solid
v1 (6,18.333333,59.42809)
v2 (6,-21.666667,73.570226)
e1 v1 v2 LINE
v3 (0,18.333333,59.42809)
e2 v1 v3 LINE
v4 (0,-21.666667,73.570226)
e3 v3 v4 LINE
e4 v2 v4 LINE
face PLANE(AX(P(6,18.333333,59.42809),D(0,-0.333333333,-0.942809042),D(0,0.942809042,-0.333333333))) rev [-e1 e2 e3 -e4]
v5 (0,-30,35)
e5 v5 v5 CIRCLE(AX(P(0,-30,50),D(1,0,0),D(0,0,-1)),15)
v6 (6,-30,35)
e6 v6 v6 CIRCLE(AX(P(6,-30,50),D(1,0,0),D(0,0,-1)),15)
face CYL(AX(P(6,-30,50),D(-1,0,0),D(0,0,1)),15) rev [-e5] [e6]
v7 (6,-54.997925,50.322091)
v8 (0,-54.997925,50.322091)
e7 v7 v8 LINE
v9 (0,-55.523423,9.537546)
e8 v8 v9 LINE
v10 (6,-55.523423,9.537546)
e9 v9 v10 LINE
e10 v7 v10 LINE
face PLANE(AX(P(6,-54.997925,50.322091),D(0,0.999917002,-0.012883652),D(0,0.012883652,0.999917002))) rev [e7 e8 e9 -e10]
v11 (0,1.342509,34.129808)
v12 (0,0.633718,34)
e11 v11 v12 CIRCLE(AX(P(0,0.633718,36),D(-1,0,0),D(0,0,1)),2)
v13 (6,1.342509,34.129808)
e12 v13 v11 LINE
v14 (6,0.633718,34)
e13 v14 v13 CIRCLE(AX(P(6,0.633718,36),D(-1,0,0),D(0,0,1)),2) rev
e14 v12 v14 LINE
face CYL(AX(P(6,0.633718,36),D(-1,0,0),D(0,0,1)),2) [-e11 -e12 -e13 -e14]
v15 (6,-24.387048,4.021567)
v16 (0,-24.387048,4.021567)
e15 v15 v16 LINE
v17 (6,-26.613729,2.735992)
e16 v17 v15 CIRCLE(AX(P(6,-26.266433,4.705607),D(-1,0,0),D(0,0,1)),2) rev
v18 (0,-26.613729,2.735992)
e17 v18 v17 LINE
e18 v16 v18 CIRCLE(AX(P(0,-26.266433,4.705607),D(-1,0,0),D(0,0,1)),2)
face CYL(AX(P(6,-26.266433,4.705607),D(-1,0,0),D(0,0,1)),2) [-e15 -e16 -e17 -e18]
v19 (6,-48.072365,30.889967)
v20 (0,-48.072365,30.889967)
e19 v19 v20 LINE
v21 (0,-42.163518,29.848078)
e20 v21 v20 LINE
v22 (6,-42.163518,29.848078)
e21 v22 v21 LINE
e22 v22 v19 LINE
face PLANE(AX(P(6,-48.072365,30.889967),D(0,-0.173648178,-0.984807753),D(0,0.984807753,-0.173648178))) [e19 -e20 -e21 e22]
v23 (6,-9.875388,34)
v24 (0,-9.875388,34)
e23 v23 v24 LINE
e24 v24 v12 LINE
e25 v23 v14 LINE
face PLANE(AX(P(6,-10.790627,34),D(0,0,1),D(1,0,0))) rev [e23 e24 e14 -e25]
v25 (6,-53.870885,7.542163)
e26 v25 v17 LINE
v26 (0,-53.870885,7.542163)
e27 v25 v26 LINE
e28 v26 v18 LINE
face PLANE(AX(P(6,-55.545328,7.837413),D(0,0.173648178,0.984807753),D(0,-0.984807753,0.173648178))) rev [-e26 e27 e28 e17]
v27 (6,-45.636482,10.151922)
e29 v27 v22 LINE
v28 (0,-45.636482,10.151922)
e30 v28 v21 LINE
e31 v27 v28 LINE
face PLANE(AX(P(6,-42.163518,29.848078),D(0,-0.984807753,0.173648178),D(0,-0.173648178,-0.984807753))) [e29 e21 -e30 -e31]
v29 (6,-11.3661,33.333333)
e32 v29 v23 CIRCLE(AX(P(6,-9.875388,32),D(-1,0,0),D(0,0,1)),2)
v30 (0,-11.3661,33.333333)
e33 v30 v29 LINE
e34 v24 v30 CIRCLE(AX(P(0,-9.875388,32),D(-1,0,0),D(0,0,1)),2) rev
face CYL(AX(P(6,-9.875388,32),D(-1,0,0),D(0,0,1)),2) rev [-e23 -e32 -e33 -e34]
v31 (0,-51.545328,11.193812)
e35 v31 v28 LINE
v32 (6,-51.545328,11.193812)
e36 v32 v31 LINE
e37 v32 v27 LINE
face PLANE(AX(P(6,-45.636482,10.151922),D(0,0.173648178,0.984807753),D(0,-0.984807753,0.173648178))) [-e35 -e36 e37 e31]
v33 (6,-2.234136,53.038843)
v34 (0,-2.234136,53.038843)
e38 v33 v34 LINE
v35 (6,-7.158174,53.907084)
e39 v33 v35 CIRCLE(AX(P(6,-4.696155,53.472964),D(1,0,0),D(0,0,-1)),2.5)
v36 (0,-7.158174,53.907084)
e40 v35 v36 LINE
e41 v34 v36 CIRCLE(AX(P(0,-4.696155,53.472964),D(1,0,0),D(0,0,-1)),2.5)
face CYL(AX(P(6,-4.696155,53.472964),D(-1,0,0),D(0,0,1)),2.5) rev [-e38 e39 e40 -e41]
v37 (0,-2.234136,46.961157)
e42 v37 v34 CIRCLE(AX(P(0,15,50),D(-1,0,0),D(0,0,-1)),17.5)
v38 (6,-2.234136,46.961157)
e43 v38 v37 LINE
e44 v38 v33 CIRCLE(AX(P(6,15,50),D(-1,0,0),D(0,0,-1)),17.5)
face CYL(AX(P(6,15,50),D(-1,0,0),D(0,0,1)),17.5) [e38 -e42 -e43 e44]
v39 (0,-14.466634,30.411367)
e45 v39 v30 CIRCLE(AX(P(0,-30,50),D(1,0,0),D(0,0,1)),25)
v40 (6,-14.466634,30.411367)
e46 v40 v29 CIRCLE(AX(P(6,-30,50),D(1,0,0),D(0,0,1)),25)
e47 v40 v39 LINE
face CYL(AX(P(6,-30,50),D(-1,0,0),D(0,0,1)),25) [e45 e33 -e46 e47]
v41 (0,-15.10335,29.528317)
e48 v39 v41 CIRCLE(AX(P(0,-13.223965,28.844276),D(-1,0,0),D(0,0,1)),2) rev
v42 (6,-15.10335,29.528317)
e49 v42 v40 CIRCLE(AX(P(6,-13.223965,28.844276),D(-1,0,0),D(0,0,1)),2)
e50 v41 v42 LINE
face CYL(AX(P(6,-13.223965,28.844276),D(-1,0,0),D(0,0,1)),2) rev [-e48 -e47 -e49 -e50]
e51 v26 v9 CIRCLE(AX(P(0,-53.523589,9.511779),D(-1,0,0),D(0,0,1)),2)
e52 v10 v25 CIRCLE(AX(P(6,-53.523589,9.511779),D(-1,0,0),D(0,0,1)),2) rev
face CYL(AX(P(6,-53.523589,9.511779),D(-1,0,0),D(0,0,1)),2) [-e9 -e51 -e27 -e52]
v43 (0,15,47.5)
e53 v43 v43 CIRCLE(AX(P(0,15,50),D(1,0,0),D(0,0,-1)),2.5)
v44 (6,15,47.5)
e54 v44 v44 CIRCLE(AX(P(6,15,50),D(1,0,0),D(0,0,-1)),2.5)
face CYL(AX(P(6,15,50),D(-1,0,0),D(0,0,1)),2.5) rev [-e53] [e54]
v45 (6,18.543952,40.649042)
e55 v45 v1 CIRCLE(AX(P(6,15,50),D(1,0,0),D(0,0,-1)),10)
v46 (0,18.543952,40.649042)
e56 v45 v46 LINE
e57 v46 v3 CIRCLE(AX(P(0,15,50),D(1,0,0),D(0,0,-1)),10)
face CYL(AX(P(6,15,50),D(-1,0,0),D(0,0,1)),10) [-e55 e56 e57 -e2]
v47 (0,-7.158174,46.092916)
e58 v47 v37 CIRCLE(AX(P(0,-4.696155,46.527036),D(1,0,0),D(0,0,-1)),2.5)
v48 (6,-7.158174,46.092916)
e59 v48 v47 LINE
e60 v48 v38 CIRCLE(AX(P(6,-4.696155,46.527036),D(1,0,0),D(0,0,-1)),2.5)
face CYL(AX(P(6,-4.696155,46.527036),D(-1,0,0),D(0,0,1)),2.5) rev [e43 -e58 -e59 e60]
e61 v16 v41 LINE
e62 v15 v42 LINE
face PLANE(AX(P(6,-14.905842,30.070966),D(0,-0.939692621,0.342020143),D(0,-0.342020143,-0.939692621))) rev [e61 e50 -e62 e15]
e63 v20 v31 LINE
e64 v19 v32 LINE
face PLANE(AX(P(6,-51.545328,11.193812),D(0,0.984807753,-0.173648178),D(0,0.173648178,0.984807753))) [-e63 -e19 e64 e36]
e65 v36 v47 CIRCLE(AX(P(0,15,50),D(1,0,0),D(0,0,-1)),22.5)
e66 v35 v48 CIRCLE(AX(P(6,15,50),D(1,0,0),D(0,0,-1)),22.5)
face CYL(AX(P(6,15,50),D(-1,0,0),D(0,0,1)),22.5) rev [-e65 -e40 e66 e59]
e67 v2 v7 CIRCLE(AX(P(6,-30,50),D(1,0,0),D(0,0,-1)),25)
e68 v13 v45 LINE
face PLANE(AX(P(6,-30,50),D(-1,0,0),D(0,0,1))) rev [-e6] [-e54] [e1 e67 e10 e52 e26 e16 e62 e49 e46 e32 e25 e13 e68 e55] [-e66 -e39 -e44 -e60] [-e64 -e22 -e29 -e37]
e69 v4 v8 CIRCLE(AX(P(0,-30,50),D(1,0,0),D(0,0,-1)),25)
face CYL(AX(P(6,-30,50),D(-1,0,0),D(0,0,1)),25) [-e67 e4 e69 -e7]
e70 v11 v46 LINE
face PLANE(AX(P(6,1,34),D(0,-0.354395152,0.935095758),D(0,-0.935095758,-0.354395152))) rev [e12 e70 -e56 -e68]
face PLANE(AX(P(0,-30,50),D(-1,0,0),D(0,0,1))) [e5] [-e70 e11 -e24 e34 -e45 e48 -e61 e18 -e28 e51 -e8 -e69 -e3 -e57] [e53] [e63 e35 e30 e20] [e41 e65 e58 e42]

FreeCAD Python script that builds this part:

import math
import FreeCAD as App
import Part
import Sketcher
from FreeCAD import Vector
Q = App.Units.Quantity


def edges_at(feature, points):
    """Names of the edges that pass closest to the given points."""
    edges = feature.Shape.Edges
    near = lambda p: min(range(len(edges)), key=lambda i: edges[i].distToShape(Part.Vertex(*p))[0])
    return sorted({f"Edge{near(p) + 1}" for p in points})

doc = App.newDocument("Part")
body = doc.addObject("PartDesign::Body", "Body")

# Sketch on YZ plane
sketch1 = body.newObject("Sketcher::SketchObject", "Sketch")
sketch1.AttachmentSupport = (doc.getObject("YZ_Plane"), [""])
sketch1.MapMode = "FlatFace"
sketch1.addGeometry([
    Part.LineSegment(Vector(18.333333, 59.42809, 0), Vector(-21.666667, 73.570226, 0)),  # 0
    Part.ArcOfCircle(Part.Circle(Vector(-30, 50, 0), Vector(0, 0, 1), 25), math.radians(70.528779), math.radians(179.261801)),  # 1
    Part.LineSegment(Vector(-54.997925, 50.322091, 0), Vector(-55.545328, 7.837413, 0)),  # 2
    Part.LineSegment(Vector(-55.545328, 7.837413, 0), Vector(-24.961026, 2.444575, 0)),  # 3
    Part.LineSegment(Vector(-24.961026, 2.444575, 0), Vector(-14.905842, 30.070966, 0)),  # 4
    Part.ArcOfCircle(Part.Circle(Vector(-30, 50, 0), Vector(0, 0, 1), 25), math.radians(-52.85988), math.radians(-39.79182)),  # 5
    Part.LineSegment(Vector(-10.790627, 34, 0), Vector(1, 34, 0)),  # 6
    Part.LineSegment(Vector(1, 34, 0), Vector(18.543952, 40.649042, 0)),  # 7
    Part.ArcOfCircle(Part.Circle(Vector(15, 50, 0), Vector(0, 0, 1), 10), math.radians(-69.243621), math.radians(70.528779)),  # 8
    Part.Circle(Vector(-30, 50, 0), Vector(0, 0, 1), 15),  # 9
    Part.LineSegment(Vector(-48.072365, 30.889967, 0), Vector(-42.163518, 29.848078, 0)),  # 10
    Part.LineSegment(Vector(-42.163518, 29.848078, 0), Vector(-45.636482, 10.151922, 0)),  # 11
    Part.LineSegment(Vector(-45.636482, 10.151922, 0), Vector(-51.545328, 11.193812, 0)),  # 12
    Part.LineSegment(Vector(-51.545328, 11.193812, 0), Vector(-48.072365, 30.889967, 0)),  # 13
    Part.ArcOfCircle(Part.Circle(Vector(-4.696155, 53.472964, 0), Vector(0, 0, 1), 2.5), math.radians(-10), math.radians(170)),  # 14
    Part.ArcOfCircle(Part.Circle(Vector(15, 50, 0), Vector(0, 0, 1), 17.5), math.radians(170), math.radians(190)),  # 15
    Part.ArcOfCircle(Part.Circle(Vector(-4.696155, 46.527036, 0), Vector(0, 0, 1), 2.5), math.radians(-170), math.radians(10)),  # 16
    Part.ArcOfCircle(Part.Circle(Vector(15, 50, 0), Vector(0, 0, 1), 22.5), math.radians(170), math.radians(190)),  # 17
    Part.Circle(Vector(15, 50, 0), Vector(0, 0, 1), 2.5),  # 18
], False)
sketch1.addConstraint([
    Sketcher.Constraint("Coincident", 0, 2, 1, 1),
    Sketcher.Constraint("Coincident", 1, 2, 2, 1),
    Sketcher.Constraint("Coincident", 2, 2, 3, 1),
    Sketcher.Constraint("Coincident", 3, 2, 4, 1),
    Sketcher.Constraint("Coincident", 4, 2, 5, 1),
    Sketcher.Constraint("Coincident", 5, 2, 6, 1),
    Sketcher.Constraint("Coincident", 6, 2, 7, 1),
    Sketcher.Constraint("Coincident", 7, 2, 8, 1),
    Sketcher.Constraint("Coincident", 8, 2, 0, 1),
    Sketcher.Constraint("Coincident", 10, 2, 11, 1),
    Sketcher.Constraint("Coincident", 11, 2, 12, 1),
    Sketcher.Constraint("Coincident", 12, 2, 13, 1),
    Sketcher.Constraint("Coincident", 13, 2, 10, 1),
    Sketcher.Constraint("Coincident", 14, 1, 15, 1),
    Sketcher.Constraint("Coincident", 15, 2, 16, 2),
    Sketcher.Constraint("Coincident", 16, 1, 17, 2),
    Sketcher.Constraint("Coincident", 17, 1, 14, 2),
    Sketcher.Constraint("Horizontal", 6),
    Sketcher.Constraint("Coincident", 5, 3, 1, 3),
    Sketcher.Constraint("Coincident", 9, 3, 1, 3),
    Sketcher.Constraint("Coincident", 15, 3, 8, 3),
    Sketcher.Constraint("Coincident", 17, 3, 8, 3),
    Sketcher.Constraint("Coincident", 18, 3, 8, 3),
    Sketcher.Constraint("Diameter", 9, Q("30 mm")),
    Sketcher.Constraint("Diameter", 18, Q("5 mm")),
    Sketcher.Constraint("Radius", 1, Q("25 mm")),
    Sketcher.Constraint("Radius", 5, Q("25 mm")),
    Sketcher.Constraint("Radius", 8, Q("10 mm")),
    Sketcher.Constraint("Radius", 14, Q("2.5 mm")),
    Sketcher.Constraint("Radius", 15, Q("17.5 mm")),
    Sketcher.Constraint("Distance", 10, Q("6 mm")),
    Sketcher.Constraint("Distance", 11, Q("20 mm")),
    Sketcher.Constraint("Distance", 12, Q("6 mm")),
    Sketcher.Constraint("Distance", 13, Q("20 mm")),
    Sketcher.Constraint("DistanceX", 1, 3, -1, 1, Q("30 mm")),
    Sketcher.Constraint("DistanceY", -1, 1, 1, 3, Q("50 mm")),
    Sketcher.Constraint("DistanceX", -1, 1, 8, 3, Q("15 mm")),
    Sketcher.Constraint("DistanceY", -1, 1, 8, 3, Q("50 mm")),
    Sketcher.Constraint("DistanceY", -1, 1, 5, 2, Q("34 mm")),
    Sketcher.Constraint("DistanceX", -1, 1, 6, 2, Q("1 mm")),
    Sketcher.Constraint("DistanceX", 2, 2, 12, 2, Q("4 mm")),
    Sketcher.Constraint("DistanceY", 2, 2, 12, 2, Q("3.356399 mm")),
    Sketcher.Constraint("Distance", 4, Q("29.399391 mm")),
    Sketcher.Constraint("DistanceY", -1, 1, 1, 2, Q("50.322091 mm")),
    Sketcher.Constraint("DistanceX", 2, 2, -1, 1, Q("55.545328 mm")),
    Sketcher.Constraint("DistanceX", 4, 2, -1, 1, Q("14.905842 mm")),
    Sketcher.Constraint("DistanceX", -1, 1, 7, 2, Q("18.543952 mm")),
    Sketcher.Constraint("DistanceY", -1, 1, 8, 2, Q("59.42809 mm")),
    Sketcher.Constraint("DistanceX", 10, 2, -1, 1, Q("42.163518 mm")),
    Sketcher.Constraint("DistanceX", 11, 2, -1, 1, Q("45.636482 mm")),
    Sketcher.Constraint("DistanceY", -1, 1, 12, 2, Q("11.193812 mm")),
    Sketcher.Constraint("DistanceX", 0, 2, 14, 3, Q("16.970512 mm")),
    Sketcher.Constraint("DistanceX", 0, 2, 16, 3, Q("16.970512 mm")),
    Sketcher.Constraint("DistanceY", 16, 3, 0, 2, Q("27.04319 mm")),
    Sketcher.Constraint("DistanceX", 3, 2, 16, 3, Q("20.264871 mm")),
    Sketcher.Constraint("DistanceX", 14, 3, 14, 1, Q("2.462019 mm")),
    Sketcher.Constraint("DistanceX", 16, 3, 15, 2, Q("2.462019 mm")),
    Sketcher.Constraint("DistanceX", 16, 1, 16, 3, Q("2.462019 mm")),
    Sketcher.Constraint("DistanceX", 17, 1, 14, 3, Q("2.462019 mm")),
])
pad1 = body.newObject("PartDesign::Pad", "Pad")
pad1.Profile = sketch1
pad1.Length = 6
doc.recompute()

fillet = body.newObject("PartDesign::Fillet", "Fillet")
fillet.Base = (pad1, edges_at(pad1, [
    (3, -14.906, 30.071),
    (3, -24.961, 2.445),
    (3, -55.545, 7.837),
    (3, 1, 34),
    (3, -10.791, 34),
]))
fillet.Radius = 2

doc.recompute()
